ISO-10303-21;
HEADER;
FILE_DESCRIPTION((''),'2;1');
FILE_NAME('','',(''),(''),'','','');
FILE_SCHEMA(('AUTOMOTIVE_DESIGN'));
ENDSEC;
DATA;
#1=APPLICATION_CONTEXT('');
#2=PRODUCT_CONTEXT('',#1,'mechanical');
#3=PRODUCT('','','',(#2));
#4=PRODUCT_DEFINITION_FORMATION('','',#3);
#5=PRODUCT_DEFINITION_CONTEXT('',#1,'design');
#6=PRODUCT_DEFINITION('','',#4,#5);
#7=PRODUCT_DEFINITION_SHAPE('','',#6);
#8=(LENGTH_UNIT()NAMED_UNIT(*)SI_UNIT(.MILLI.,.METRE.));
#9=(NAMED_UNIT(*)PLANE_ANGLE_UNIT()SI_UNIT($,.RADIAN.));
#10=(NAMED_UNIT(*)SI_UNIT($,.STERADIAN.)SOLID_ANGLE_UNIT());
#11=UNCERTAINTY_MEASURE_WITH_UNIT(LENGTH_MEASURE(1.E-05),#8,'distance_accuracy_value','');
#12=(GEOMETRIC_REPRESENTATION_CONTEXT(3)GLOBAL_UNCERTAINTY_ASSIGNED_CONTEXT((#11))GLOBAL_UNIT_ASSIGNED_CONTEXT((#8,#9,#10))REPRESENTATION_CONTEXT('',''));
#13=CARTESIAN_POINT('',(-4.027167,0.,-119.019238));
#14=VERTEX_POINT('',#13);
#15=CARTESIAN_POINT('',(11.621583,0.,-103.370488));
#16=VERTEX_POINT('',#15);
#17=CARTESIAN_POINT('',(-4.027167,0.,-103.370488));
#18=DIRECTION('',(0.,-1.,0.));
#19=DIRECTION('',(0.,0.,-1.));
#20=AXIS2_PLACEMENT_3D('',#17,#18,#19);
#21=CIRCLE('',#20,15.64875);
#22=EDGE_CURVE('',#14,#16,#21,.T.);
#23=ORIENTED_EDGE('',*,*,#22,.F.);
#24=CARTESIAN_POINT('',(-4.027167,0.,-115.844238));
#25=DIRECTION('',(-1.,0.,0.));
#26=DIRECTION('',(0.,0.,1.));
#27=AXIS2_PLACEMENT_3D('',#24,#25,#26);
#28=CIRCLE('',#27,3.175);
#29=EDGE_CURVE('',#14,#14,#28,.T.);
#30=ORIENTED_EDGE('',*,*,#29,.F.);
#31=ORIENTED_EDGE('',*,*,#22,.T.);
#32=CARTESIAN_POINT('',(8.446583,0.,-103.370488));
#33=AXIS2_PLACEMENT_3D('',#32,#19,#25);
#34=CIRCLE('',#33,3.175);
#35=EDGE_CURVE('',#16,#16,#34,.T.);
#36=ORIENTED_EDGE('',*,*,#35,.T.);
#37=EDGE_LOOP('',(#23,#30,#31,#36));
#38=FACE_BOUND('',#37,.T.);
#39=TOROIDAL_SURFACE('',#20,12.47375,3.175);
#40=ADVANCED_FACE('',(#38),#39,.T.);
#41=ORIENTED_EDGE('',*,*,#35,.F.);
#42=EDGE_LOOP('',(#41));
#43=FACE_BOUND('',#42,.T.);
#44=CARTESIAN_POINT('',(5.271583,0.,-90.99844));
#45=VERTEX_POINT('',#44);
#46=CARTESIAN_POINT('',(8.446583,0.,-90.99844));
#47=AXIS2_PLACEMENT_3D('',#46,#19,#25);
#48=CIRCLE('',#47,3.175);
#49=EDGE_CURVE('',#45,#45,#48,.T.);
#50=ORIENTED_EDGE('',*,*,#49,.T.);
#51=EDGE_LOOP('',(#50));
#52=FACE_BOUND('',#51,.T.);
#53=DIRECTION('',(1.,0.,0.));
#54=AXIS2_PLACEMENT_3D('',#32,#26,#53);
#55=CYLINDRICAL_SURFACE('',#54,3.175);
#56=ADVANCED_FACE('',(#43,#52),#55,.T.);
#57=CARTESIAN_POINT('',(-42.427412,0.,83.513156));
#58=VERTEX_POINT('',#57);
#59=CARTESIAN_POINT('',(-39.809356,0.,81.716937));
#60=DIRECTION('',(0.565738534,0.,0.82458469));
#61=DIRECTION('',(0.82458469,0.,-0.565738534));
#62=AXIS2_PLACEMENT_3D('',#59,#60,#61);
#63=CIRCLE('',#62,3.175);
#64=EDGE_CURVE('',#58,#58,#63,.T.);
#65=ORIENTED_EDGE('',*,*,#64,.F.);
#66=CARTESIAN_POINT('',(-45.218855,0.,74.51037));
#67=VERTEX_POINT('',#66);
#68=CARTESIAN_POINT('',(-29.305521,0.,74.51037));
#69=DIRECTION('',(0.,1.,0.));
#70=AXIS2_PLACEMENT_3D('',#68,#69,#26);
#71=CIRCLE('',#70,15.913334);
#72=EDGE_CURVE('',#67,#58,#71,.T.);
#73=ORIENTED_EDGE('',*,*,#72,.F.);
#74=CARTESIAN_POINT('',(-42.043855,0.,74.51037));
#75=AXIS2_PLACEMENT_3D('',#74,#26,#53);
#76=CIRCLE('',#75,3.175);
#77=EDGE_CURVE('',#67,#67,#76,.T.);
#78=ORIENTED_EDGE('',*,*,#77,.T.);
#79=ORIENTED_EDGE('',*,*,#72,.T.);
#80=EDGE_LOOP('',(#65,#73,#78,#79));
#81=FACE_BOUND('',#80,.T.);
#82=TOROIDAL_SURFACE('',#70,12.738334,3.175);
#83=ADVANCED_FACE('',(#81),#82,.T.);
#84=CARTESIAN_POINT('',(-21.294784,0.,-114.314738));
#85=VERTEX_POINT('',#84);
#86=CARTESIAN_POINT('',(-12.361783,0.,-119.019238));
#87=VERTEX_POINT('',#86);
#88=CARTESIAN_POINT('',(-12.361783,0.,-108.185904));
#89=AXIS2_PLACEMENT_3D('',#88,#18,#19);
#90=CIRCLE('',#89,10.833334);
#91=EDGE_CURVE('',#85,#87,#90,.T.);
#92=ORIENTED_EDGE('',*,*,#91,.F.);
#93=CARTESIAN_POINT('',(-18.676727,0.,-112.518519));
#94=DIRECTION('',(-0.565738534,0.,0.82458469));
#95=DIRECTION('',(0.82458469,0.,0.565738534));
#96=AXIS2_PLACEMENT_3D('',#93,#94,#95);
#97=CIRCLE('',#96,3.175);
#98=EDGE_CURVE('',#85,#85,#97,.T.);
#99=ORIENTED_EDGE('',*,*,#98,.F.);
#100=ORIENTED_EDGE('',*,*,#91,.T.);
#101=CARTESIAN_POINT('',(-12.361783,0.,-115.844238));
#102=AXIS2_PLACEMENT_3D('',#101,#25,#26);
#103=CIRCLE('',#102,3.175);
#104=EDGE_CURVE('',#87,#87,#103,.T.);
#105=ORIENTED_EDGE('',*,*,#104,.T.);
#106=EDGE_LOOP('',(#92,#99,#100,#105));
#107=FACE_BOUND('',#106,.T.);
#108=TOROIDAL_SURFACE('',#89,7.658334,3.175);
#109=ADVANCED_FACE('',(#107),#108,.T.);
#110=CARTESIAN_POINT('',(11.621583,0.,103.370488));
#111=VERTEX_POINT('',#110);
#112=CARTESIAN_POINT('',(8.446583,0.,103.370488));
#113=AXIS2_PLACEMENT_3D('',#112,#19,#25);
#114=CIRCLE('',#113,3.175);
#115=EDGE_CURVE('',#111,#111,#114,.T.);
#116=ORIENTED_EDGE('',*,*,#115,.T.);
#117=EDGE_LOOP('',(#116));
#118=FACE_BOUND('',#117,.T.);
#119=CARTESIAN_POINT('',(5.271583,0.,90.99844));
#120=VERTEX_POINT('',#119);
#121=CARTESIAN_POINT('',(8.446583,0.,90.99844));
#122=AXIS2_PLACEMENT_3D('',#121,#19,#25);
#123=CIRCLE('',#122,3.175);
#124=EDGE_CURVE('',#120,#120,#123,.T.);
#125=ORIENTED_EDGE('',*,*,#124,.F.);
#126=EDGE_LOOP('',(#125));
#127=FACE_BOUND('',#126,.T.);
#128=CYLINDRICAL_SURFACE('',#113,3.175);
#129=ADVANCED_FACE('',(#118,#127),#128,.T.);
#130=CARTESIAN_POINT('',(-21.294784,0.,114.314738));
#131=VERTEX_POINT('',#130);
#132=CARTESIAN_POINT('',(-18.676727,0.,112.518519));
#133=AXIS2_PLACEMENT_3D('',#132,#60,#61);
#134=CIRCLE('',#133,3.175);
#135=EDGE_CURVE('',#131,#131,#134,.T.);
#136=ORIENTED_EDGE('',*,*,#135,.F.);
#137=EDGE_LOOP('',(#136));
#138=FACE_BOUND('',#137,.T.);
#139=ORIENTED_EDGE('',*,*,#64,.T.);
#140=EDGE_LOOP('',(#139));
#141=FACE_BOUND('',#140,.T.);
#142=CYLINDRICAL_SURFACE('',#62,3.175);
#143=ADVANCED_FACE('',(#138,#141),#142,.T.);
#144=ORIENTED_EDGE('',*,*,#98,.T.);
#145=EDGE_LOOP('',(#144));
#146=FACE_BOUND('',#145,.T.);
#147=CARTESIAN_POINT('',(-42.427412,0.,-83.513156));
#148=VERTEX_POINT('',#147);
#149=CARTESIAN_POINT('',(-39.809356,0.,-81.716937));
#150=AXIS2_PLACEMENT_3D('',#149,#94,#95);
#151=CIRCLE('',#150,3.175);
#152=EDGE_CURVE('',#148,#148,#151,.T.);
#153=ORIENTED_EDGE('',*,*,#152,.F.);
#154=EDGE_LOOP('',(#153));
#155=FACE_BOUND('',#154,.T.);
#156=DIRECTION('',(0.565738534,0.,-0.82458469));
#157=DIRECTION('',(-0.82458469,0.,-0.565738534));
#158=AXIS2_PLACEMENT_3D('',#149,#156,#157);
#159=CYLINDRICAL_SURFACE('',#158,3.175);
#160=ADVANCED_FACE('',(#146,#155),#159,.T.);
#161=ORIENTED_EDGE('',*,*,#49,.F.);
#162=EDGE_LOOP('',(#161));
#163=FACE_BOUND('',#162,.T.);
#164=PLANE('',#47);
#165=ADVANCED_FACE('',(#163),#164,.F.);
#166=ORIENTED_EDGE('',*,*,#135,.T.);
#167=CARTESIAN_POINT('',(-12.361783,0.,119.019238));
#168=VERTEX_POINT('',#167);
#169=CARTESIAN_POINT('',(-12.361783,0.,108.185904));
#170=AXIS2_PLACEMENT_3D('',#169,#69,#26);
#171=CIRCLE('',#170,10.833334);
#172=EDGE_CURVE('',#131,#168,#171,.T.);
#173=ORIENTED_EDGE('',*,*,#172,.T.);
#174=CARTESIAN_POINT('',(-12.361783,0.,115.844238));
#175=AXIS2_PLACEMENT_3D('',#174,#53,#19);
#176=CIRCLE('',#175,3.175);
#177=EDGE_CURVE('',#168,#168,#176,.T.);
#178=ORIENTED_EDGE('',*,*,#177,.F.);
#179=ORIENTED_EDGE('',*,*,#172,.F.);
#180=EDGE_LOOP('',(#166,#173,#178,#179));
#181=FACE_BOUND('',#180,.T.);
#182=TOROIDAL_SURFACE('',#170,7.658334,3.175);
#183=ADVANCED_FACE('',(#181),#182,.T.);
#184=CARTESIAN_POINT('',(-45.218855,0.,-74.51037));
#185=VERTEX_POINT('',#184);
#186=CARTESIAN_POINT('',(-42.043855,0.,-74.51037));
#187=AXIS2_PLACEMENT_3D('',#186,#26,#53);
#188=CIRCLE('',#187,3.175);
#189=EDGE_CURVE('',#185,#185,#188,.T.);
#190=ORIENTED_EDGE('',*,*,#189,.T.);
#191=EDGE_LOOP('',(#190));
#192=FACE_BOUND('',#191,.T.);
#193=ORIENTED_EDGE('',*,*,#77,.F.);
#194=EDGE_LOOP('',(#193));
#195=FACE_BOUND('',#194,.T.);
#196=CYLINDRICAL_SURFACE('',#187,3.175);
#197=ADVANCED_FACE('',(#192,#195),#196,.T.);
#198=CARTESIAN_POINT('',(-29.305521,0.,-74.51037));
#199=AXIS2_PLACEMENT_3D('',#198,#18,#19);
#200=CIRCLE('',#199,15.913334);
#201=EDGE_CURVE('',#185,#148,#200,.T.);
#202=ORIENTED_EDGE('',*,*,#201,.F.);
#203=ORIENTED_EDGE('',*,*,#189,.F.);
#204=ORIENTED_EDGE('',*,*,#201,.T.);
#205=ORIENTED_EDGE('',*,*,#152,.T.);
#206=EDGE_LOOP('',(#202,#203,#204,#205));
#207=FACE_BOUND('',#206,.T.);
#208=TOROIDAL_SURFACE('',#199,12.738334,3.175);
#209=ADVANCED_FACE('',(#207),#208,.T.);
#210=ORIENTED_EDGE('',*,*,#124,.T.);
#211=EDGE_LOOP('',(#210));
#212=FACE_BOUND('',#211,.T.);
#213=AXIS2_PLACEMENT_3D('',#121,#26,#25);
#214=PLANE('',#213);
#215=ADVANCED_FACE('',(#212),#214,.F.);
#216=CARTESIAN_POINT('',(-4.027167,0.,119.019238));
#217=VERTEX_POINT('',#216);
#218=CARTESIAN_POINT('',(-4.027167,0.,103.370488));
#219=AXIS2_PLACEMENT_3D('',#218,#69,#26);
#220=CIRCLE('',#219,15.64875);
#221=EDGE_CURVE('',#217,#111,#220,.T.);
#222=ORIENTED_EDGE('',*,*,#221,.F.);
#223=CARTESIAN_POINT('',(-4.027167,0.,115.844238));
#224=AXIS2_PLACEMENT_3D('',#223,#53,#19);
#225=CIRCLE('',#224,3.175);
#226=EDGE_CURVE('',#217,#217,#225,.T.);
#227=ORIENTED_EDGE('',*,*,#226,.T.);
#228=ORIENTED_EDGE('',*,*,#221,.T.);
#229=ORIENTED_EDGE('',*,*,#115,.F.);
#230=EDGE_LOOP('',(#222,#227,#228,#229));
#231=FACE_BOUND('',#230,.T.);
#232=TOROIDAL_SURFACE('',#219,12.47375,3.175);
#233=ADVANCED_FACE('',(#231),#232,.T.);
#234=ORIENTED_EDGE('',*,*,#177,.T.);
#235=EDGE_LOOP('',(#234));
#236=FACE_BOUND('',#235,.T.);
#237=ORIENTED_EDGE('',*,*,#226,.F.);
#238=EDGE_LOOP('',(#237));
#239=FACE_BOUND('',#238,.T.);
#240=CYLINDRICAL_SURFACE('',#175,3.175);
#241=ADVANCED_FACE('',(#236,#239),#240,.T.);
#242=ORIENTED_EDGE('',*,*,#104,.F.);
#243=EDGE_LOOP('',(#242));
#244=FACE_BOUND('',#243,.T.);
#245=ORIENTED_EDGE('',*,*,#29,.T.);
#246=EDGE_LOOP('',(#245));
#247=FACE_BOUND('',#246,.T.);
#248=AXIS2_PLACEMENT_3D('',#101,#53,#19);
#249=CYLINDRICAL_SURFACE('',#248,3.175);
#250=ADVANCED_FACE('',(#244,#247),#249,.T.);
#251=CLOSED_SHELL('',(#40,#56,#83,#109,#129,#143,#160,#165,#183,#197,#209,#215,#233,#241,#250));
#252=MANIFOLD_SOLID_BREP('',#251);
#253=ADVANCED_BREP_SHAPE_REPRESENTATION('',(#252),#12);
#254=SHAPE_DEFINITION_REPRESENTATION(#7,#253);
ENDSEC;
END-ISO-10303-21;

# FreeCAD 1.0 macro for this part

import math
import FreeCAD as App
import Part
import Sketcher
from FreeCAD import Vector
Q = App.Units.Quantity

doc = App.newDocument("Part")
body = doc.addObject("PartDesign::Body", "Body")

# Sketch on XY plane
sketch1 = body.newObject("Sketcher::SketchObject", "Sketch")
sketch1.AttachmentSupport = (doc.getObject("XY_Plane"), [""])
sketch1.MapMode = "FlatFace"
sketch1.addGeometry(Part.Circle(Vector(-42, 0, 0), Vector(0, 0, 1), 3.2), False)
sketch1.addConstraint([
    Sketcher.Constraint("PointOnObject", 0, 3, -1),
    Sketcher.Constraint("Diameter", 0, Q("0.25 in")),
    Sketcher.Constraint("DistanceX", 0, 3, -1, 1, 42.043855),
])

# Sketch on XZ plane
sketch2 = body.newObject("Sketcher::SketchObject", "Sketch001")
sketch2.AttachmentSupport = (doc.getObject("XZ_Plane"), [""])
sketch2.MapMode = "FlatFace"
sketch2.addGeometry([
    Part.LineSegment(Vector(-42, 0, 0), Vector(-42, -75, 0)),  # 0
    Part.ArcOfCircle(Part.Circle(Vector(-29, -75, 0), Vector(0, 0, 1), 13), math.radians(-180), math.radians(-146)),  # 1
    Part.LineSegment(Vector(-40, -82, 0), Vector(-19, -112, 0)),  # 2
    Part.ArcOfCircle(Part.Circle(Vector(-12, -108, 0), Vector(0, 0, 1), 8), math.radians(-146), math.radians(-90)),  # 3
    Part.LineSegment(Vector(-12, -116, 0), Vector(-4, -116, 0)),  # 4
    Part.ArcOfCircle(Part.Circle(Vector(-4, -103, 0), Vector(0, 0, 1), 12), math.radians(-90), math.radians(0)),  # 5
    Part.LineSegment(Vector(8, -103, 0), Vector(8, -91, 0)),  # 6
], False)
sketch2.addConstraint([
    Sketcher.Constraint("Tangent", 0, 2, 1, 1),
    Sketcher.Constraint("Tangent", 1, 2, 2, 1),
    Sketcher.Constraint("Tangent", 2, 2, 3, 1),
    Sketcher.Constraint("Tangent", 3, 2, 4, 1),
    Sketcher.Constraint("Tangent", 4, 2, 5, 1),
    Sketcher.Constraint("Tangent", 5, 2, 6, 1),
    Sketcher.Constraint("Vertical", 0),
    Sketcher.Constraint("Horizontal", 4),
    Sketcher.Constraint("Vertical", 6),
    Sketcher.Constraint("PointOnObject", 0, 1, -1),
    Sketcher.Constraint("Radius", 1, Q("0.5 in")),
    Sketcher.Constraint("Radius", 3, Q("0.3 in")),
    Sketcher.Constraint("Radius", 5, 12.435416),
    Sketcher.Constraint("DistanceY", 0, 2, 0, 1, 74.51037),
    Sketcher.Constraint("DistanceX", 4, 1, 4, 2, 8.334616),
    Sketcher.Constraint("DistanceY", 6, 1, 6, 2, 12.372047),
    Sketcher.Constraint("DistanceX", 1, 3, -1, 1, 29.305521),
    Sketcher.Constraint("DistanceY", 1, 2, -1, 1, 81.69525),
    Sketcher.Constraint("DistanceY", 2, 2, -1, 1, 112.496832),
])
doc.recompute()

additivepipe = body.newObject("PartDesign::AdditivePipe", "AdditivePipe")
additivepipe.Profile = sketch1
additivepipe.Spine = (sketch2, ["Edge1", "Edge2", "Edge3", "Edge4", "Edge5", "Edge6", "Edge7"])
doc.recompute()

mirrored = body.newObject("PartDesign::Mirrored", "Mirrored")
mirrored.Originals = [additivepipe]
mirrored.MirrorPlane = (doc.getObject("XY_Plane"), [""])
body.Tip = mirrored

doc.recompute()
